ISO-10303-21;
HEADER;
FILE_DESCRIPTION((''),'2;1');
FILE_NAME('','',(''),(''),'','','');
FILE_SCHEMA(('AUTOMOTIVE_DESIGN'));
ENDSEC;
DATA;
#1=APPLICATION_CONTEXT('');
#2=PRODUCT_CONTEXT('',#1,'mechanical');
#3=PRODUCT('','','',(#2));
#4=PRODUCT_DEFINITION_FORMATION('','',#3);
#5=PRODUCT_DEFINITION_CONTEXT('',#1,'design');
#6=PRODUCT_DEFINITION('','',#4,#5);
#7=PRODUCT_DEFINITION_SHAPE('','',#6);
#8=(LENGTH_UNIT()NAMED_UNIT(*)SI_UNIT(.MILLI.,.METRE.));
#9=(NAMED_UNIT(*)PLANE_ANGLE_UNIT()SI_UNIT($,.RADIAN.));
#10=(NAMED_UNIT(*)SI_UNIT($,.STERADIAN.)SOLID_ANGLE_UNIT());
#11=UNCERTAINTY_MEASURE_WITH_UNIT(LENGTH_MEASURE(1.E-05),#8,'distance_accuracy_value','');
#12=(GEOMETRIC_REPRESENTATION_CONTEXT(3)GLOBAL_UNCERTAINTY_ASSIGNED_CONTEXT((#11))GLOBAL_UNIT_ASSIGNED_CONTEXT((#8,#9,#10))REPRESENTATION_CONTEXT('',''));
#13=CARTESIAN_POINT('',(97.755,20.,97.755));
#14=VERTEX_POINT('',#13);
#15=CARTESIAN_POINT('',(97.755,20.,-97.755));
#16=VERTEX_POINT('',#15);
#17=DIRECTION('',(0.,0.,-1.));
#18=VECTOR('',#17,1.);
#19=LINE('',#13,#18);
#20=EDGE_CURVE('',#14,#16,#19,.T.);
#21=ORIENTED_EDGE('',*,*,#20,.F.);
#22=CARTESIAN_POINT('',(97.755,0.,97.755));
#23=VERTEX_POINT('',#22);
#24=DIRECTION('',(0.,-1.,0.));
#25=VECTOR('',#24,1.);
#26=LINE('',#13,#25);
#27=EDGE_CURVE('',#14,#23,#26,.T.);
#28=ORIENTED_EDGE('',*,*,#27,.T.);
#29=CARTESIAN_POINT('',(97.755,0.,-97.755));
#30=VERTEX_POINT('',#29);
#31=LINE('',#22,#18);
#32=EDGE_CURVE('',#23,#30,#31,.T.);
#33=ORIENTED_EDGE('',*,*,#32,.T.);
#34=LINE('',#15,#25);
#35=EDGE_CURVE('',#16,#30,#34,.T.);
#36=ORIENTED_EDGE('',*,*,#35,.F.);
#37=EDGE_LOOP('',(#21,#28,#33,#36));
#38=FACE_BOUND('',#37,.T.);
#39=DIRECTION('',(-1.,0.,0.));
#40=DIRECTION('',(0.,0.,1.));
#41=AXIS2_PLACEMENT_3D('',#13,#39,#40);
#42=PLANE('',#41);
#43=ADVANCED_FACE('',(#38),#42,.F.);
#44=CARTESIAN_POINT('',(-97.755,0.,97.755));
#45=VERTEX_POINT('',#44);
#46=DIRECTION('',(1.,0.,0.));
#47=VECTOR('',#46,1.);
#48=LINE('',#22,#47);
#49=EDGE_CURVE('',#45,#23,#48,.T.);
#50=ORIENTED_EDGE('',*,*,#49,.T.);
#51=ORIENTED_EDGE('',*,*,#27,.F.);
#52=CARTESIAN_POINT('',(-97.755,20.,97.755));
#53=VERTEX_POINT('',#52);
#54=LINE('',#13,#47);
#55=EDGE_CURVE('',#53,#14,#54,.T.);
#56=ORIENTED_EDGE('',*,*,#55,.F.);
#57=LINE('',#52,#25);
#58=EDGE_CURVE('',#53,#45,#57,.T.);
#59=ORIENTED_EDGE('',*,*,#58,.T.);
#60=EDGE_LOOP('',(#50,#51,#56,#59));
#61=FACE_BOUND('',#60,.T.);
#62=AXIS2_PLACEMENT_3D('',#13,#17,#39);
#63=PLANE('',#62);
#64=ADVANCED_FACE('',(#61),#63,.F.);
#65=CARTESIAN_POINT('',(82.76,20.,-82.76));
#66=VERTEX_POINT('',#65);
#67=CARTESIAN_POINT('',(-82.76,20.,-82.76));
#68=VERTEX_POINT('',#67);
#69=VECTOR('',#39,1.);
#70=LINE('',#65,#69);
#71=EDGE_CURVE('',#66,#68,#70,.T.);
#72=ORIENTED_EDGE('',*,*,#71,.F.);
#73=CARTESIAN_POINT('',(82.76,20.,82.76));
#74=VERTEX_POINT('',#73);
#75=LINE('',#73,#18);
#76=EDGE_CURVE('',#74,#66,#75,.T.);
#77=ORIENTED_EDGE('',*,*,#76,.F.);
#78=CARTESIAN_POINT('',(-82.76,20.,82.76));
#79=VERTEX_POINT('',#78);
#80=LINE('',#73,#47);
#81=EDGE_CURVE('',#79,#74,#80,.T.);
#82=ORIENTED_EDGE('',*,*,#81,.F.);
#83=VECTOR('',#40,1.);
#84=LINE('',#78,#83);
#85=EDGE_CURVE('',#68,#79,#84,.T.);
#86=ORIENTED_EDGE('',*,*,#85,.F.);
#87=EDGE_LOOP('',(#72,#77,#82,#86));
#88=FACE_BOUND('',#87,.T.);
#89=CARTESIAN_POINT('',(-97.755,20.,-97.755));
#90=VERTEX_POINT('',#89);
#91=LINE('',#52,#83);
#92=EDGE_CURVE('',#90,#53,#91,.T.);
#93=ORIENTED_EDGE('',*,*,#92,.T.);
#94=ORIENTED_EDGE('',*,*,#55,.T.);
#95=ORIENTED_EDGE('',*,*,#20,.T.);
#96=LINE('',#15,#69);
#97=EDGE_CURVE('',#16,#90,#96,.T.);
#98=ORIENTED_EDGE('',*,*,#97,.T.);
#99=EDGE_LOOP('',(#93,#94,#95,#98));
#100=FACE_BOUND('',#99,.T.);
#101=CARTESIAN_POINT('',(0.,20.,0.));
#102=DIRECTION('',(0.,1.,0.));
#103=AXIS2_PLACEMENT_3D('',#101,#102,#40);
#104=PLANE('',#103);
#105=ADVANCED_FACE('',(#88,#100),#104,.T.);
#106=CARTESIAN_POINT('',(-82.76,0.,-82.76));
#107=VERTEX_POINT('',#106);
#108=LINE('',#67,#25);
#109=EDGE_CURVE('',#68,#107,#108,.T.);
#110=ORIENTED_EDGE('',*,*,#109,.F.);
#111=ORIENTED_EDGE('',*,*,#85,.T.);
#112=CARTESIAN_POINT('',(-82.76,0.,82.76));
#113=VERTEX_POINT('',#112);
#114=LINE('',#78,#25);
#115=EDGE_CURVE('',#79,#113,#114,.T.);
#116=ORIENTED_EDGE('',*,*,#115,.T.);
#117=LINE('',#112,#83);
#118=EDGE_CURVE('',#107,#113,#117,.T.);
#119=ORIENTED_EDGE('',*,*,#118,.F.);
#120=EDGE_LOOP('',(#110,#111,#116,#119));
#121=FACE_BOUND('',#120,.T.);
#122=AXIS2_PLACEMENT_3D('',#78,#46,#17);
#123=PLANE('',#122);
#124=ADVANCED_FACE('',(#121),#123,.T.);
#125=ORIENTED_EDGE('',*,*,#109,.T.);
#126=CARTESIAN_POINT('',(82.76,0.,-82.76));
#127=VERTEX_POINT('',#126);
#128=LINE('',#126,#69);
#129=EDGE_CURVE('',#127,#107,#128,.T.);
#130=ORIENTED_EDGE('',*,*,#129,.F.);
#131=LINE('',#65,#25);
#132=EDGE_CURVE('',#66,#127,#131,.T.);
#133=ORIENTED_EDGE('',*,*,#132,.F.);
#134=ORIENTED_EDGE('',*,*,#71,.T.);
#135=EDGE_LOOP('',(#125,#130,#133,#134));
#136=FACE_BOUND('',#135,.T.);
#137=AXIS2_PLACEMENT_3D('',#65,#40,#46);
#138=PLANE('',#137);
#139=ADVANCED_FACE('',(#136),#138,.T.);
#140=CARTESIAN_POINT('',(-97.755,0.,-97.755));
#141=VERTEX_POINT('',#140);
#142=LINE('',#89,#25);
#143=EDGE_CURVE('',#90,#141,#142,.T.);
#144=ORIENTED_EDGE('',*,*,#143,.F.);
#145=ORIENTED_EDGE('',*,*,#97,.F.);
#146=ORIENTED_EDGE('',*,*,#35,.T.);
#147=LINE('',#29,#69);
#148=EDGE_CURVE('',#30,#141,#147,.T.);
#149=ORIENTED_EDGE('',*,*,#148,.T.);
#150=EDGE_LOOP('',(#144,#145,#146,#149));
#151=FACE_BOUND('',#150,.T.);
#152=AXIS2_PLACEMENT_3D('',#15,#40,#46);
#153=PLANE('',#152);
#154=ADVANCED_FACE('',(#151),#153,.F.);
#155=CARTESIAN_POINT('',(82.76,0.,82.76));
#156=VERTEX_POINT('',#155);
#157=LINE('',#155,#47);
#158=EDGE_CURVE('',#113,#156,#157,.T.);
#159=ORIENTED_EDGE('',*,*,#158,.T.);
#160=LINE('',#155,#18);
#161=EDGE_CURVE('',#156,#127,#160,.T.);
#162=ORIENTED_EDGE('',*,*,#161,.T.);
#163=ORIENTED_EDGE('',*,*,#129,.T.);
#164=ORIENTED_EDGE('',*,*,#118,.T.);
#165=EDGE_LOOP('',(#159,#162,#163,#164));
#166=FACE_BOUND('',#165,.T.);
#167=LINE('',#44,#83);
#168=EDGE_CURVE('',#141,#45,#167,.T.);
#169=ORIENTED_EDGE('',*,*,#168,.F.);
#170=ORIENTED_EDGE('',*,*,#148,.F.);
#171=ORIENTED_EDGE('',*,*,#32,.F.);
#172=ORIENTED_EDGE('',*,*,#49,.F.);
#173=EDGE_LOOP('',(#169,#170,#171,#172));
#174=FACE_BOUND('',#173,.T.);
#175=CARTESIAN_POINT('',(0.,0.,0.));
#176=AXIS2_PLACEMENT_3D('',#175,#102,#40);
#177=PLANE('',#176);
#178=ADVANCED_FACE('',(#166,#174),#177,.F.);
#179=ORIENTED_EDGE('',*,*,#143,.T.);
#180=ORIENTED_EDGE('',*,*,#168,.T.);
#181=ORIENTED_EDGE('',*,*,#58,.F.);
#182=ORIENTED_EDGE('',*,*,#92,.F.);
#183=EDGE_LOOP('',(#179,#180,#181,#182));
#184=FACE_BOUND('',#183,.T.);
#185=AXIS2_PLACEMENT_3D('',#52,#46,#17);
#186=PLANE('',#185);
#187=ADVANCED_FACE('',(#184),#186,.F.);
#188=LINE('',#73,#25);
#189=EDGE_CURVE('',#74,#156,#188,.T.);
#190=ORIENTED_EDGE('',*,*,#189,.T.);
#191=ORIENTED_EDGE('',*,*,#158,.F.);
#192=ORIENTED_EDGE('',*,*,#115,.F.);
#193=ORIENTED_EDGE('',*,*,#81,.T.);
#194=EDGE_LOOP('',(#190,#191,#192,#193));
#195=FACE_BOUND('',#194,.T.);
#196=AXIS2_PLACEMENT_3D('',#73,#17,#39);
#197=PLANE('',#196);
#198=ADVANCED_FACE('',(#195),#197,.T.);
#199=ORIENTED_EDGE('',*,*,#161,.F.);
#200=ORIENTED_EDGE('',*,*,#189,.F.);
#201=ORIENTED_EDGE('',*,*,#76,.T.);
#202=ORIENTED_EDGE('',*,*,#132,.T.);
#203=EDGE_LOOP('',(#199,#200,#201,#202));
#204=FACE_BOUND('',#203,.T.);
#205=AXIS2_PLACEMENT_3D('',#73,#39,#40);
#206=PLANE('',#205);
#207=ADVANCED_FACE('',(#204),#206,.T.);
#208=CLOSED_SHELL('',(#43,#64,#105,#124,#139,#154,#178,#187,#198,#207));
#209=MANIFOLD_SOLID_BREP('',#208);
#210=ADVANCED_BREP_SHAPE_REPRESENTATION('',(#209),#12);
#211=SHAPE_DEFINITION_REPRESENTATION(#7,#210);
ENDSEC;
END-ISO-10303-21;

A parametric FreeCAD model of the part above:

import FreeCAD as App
import Part
import Sketcher

doc = App.newDocument("Part")
body = doc.addObject("PartDesign::Body", "Body")

sketch1 = body.newObject("Sketcher::SketchObject", "Sketch")
sketch1.AttachmentSupport = (doc.getObject("XZ_Plane"), [""])
sketch1.MapMode = "FlatFace"
sketch1.addGeometry([
    Part.LineSegment(App.Vector(-97.755, -97.755, 0), App.Vector(-97.755, 97.755, 0)),
    Part.LineSegment(App.Vector(-97.755, 97.755, 0), App.Vector(97.755, 97.755, 0)),
    Part.LineSegment(App.Vector(97.755, 97.755, 0), App.Vector(97.755, -97.755, 0)),
    Part.LineSegment(App.Vector(97.755, -97.755, 0), App.Vector(-97.755, -97.755, 0)),
    Part.LineSegment(App.Vector(82.76, 82.76, 0), App.Vector(-82.76, 82.76, 0)),
    Part.LineSegment(App.Vector(-82.76, 82.76, 0), App.Vector(-82.76, -82.76, 0)),
    Part.LineSegment(App.Vector(-82.76, -82.76, 0), App.Vector(82.76, -82.76, 0)),
    Part.LineSegment(App.Vector(82.76, -82.76, 0), App.Vector(82.76, 82.76, 0)),
], False)
sketch1.addConstraint([
    Sketcher.Constraint("Coincident", 0, 2, 1, 1),
    Sketcher.Constraint("Coincident", 1, 2, 2, 1),
    Sketcher.Constraint("Coincident", 2, 2, 3, 1),
    Sketcher.Constraint("Coincident", 3, 2, 0, 1),
    Sketcher.Constraint("Coincident", 4, 2, 5, 1),
    Sketcher.Constraint("Coincident", 5, 2, 6, 1),
    Sketcher.Constraint("Coincident", 6, 2, 7, 1),
    Sketcher.Constraint("Coincident", 7, 2, 4, 1),
    Sketcher.Constraint("Vertical", 0),
    Sketcher.Constraint("Horizontal", 1),
    Sketcher.Constraint("Vertical", 2),
    Sketcher.Constraint("Horizontal", 3),
    Sketcher.Constraint("Horizontal", 4),
    Sketcher.Constraint("Vertical", 5),
    Sketcher.Constraint("Horizontal", 6),
    Sketcher.Constraint("Vertical", 7),
    Sketcher.Constraint("Symmetric", 0, 2, 2, 2, -1, 1),
    Sketcher.Constraint("Symmetric", 4, 2, 6, 2, -1, 1),
    Sketcher.Constraint("Equal", 3, 0),
    Sketcher.Constraint("Equal", 6, 5),
    Sketcher.Constraint("DistanceX", 1, 1, 1, 2, 195.51),
    Sketcher.Constraint("DistanceX", 4, 2, 4, 1, 165.52),
])
pad1 = body.newObject("PartDesign::Pad", "Pad")
pad1.Profile = sketch1
pad1.Length = 20
pad1.Reversed = True

doc.recompute()
